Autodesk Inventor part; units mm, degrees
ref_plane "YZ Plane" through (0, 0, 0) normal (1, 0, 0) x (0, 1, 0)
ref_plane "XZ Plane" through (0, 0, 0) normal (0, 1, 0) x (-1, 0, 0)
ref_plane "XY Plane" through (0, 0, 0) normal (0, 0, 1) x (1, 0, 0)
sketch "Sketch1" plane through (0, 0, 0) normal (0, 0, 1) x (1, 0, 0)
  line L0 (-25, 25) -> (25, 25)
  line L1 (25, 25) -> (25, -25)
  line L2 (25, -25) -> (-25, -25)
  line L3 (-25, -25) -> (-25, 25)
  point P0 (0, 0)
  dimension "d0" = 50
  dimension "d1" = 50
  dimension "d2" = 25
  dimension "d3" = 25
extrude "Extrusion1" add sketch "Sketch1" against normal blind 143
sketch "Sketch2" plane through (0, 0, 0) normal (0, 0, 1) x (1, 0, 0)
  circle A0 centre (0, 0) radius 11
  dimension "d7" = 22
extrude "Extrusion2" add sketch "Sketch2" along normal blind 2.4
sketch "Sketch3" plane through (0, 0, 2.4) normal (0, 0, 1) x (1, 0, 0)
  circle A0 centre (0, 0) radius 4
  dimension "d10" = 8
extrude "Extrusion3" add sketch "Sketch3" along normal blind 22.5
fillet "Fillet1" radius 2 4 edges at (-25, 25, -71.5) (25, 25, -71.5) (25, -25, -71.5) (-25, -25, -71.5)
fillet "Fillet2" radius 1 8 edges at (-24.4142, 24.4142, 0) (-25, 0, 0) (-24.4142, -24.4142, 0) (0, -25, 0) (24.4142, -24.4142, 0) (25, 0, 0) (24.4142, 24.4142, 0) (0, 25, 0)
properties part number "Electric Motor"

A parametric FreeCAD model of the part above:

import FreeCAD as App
import Part
import Sketcher
Q = App.Units.Quantity


def edges_at(feature, points):
    """Names of the edges that pass closest to the given points."""
    edges = feature.Shape.Edges
    near = lambda p: min(range(len(edges)), key=lambda i: edges[i].distToShape(Part.Vertex(*p))[0])
    return sorted({f"Edge{near(p) + 1}" for p in points})


def add_polygon(sketch, points):
    """Adds a closed chain of lines whose ends are joined by coincident constraints."""
    first, n = sketch.GeometryCount, len(points)
    for a, b in zip(points, points[1:] + points[:1]):
        sketch.addGeometry(Part.LineSegment(App.Vector(*a, 0), App.Vector(*b, 0)), False)
    for i in range(n):
        sketch.addConstraint(Sketcher.Constraint("Coincident", first + i, 2, first + (i + 1) % n, 1))

doc = App.newDocument("Part")
body = doc.addObject("PartDesign::Body", "Body")

sketch1 = body.newObject("Sketcher::SketchObject", "Sketch")
sketch1.AttachmentSupport = (doc.getObject("XY_Plane"), [""])
sketch1.MapMode = "FlatFace"
add_polygon(sketch1, [(25, 25), (-25, 25), (-25, -25), (25, -25)])
sketch1.addConstraint([
    Sketcher.Constraint("Horizontal", 0),
    Sketcher.Constraint("Vertical", 1),
    Sketcher.Constraint("Horizontal", 2),
    Sketcher.Constraint("Vertical", 3),
    Sketcher.Constraint("Symmetric", 0, 2, 2, 2, -1, 1),
    Sketcher.Constraint("Equal", 2, 1),
    Sketcher.Constraint("DistanceX", 0, 2, 0, 1, Q("50 mm")),
])
pad1 = body.newObject("PartDesign::Pad", "Pad")
pad1.Profile = sketch1
pad1.Length = 143
pad1.Reversed = True

sketch2 = body.newObject("Sketcher::SketchObject", "Sketch001")
sketch2.AttachmentSupport = (doc.getObject("XY_Plane"), [""])
sketch2.MapMode = "FlatFace"
sketch2.addGeometry(Part.Circle(App.Vector(0, 0, 0), App.Vector(0, 0, 1), 11), False)
sketch2.addConstraint([
    Sketcher.Constraint("Coincident", 0, 3, -1, 1),
    Sketcher.Constraint("Diameter", 0, Q("22 mm")),
])
pad2 = body.newObject("PartDesign::Pad", "Pad001")
pad2.Profile = sketch2
pad2.Length = 2.4

sketch3 = body.newObject("Sketcher::SketchObject", "Sketch002")
sketch3.AttachmentSupport = (doc.getObject("XY_Plane"), [""])
sketch3.MapMode = "FlatFace"
sketch3.AttachmentOffset = App.Placement(App.Vector(0, 0, 2.4), App.Rotation())
sketch3.addGeometry(Part.Circle(App.Vector(0, 0, 0), App.Vector(0, 0, 1), 4), False)
sketch3.addConstraint([
    Sketcher.Constraint("Coincident", 0, 3, -1, 1),
    Sketcher.Constraint("Diameter", 0, Q("8 mm")),
])
pad3 = body.newObject("PartDesign::Pad", "Pad002")
pad3.Profile = sketch3
pad3.Length = 22.5
doc.recompute()

fillet = body.newObject("PartDesign::Fillet", "Fillet")
fillet.Base = (pad3, edges_at(pad3, [
    (-25, 25, -71.5),
    (25, 25, -71.5),
    (25, -25, -71.5),
    (-25, -25, -71.5),
]))
fillet.Radius = 2
doc.recompute()

fillet2 = body.newObject("PartDesign::Fillet", "Fillet001")
fillet2.Base = (fillet, edges_at(fillet, [
    (-24.414, 24.414, 0),
    (-25, 0, 0),
    (-24.414, -24.414, 0),
    (0, -25, 0),
    (24.414, -24.414, 0),
    (25, 0, 0),
    (24.414, 24.414, 0),
    (0, 25, 0),
]))
fillet2.Radius = 1

doc.recompute()
